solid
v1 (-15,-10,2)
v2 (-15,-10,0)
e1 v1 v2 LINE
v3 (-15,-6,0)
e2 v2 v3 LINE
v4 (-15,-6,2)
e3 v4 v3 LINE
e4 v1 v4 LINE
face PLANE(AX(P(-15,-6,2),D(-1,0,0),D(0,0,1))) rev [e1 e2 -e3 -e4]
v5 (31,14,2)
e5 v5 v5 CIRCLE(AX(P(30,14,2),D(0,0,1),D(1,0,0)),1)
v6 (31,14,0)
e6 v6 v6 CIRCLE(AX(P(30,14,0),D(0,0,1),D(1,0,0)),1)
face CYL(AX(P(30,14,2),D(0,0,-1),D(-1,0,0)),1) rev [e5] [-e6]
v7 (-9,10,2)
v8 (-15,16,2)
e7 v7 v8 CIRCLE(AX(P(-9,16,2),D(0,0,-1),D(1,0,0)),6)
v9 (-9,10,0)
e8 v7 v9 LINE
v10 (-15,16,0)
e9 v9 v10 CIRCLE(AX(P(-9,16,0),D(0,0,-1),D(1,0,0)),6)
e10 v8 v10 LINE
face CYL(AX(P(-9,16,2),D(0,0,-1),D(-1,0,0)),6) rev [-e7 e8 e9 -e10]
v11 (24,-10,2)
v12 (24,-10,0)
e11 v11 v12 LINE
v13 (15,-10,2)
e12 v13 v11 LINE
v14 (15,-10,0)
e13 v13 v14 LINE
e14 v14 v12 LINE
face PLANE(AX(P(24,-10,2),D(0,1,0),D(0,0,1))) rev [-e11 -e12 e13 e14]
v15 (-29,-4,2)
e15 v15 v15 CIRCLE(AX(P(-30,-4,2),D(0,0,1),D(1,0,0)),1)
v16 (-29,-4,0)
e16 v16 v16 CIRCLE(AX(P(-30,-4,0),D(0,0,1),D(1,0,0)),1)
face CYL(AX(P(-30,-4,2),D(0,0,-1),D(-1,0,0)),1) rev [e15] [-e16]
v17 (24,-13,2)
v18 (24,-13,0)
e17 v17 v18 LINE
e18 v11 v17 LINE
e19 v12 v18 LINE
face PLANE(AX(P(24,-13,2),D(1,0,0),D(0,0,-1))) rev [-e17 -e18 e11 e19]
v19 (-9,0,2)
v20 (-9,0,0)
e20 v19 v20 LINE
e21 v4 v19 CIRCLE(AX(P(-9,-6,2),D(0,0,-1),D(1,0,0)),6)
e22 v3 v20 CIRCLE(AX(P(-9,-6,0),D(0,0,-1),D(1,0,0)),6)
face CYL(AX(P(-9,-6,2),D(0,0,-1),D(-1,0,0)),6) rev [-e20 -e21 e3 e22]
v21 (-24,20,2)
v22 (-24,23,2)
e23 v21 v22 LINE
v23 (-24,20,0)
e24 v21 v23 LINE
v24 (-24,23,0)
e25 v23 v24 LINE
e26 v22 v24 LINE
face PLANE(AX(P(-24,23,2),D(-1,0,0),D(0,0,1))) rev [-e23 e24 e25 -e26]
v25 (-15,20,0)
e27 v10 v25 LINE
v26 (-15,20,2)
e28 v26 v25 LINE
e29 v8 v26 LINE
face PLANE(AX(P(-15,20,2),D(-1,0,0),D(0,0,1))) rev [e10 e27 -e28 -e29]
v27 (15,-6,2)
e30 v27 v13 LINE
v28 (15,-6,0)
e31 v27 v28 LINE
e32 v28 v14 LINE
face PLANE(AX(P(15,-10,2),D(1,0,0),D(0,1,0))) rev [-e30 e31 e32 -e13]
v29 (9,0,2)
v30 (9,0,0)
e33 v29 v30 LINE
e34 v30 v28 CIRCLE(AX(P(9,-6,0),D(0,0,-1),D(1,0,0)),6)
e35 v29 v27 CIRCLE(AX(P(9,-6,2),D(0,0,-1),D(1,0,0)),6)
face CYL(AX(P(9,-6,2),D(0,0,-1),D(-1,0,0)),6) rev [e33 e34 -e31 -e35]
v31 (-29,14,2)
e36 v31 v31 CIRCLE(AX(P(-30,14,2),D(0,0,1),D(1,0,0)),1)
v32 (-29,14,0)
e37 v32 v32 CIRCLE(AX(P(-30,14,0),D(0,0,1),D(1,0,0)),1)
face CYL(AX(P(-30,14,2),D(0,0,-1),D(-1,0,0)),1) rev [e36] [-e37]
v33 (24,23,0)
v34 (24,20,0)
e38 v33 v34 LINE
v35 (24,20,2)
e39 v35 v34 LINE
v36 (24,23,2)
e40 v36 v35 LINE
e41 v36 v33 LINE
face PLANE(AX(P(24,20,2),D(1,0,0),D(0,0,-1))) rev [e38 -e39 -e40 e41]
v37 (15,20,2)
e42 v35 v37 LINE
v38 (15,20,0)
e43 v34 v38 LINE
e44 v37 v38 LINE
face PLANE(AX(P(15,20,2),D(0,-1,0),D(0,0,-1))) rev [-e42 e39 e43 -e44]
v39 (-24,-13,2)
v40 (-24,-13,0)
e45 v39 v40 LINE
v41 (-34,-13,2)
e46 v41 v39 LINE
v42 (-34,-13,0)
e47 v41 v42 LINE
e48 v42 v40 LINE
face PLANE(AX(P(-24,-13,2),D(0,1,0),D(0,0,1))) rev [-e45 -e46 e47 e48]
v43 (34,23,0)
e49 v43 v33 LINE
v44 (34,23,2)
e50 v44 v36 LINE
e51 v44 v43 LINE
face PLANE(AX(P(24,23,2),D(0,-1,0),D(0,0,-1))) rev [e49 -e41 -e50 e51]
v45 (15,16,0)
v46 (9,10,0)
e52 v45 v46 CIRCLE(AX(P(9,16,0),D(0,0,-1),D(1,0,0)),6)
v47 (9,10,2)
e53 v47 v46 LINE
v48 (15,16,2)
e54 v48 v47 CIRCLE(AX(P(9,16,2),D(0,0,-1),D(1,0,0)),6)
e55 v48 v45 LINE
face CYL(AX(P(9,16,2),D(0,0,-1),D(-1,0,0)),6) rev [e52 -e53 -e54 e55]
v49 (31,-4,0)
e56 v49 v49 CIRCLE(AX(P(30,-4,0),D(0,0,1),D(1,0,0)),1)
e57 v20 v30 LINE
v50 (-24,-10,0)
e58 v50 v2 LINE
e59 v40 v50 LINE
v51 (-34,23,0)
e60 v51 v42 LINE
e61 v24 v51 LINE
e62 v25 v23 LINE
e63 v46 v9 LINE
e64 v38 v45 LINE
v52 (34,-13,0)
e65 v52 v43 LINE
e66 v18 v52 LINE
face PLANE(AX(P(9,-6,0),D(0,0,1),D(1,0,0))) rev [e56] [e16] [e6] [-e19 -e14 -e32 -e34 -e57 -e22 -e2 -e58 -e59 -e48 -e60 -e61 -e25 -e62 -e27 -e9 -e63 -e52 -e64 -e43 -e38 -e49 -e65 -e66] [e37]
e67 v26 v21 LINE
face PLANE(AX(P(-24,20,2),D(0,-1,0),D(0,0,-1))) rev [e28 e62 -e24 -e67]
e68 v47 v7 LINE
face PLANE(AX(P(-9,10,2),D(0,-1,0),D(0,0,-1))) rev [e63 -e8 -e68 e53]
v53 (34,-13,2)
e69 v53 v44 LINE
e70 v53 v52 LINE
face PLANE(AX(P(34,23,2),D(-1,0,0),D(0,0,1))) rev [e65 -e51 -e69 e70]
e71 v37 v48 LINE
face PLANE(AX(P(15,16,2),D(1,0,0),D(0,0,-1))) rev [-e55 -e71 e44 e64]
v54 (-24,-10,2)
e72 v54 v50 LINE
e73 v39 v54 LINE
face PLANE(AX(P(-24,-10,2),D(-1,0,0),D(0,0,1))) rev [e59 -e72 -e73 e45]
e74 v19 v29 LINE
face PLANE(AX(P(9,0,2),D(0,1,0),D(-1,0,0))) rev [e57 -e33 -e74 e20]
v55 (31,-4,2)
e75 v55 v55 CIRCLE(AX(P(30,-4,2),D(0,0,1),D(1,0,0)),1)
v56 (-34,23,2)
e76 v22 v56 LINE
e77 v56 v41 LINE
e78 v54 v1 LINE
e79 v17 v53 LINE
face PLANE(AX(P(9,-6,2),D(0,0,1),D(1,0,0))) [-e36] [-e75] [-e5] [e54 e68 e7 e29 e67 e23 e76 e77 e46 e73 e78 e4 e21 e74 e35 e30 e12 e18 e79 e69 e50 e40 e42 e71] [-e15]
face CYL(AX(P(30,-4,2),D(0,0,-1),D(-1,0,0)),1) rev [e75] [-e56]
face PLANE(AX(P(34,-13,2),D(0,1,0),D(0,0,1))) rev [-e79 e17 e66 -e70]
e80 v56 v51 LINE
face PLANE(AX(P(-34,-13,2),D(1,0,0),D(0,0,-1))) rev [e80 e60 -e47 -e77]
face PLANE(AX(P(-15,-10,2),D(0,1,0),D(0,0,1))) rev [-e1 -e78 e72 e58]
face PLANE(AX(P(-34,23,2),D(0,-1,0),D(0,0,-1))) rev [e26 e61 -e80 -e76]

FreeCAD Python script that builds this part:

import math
import FreeCAD as App
import Part
import Sketcher

doc = App.newDocument("Part")
body = doc.addObject("PartDesign::Body", "Body")

# Sketch on XY plane
sketch1 = body.newObject("Sketcher::SketchObject", "Sketch")
sketch1.AttachmentSupport = (doc.getObject("XY_Plane"), [""])
sketch1.MapMode = "FlatFace"
sketch1.addGeometry([
    Part.LineSegment(App.Vector(24, 20, 0), App.Vector(15, 20, 0)),  # 0
    Part.LineSegment(App.Vector(15, 20, 0), App.Vector(15, 16, 0)),  # 1
    Part.ArcOfCircle(Part.Circle(App.Vector(9, 16, 0), App.Vector(0, 0, 1), 6), math.radians(-90), math.radians(0)),  # 2
    Part.LineSegment(App.Vector(9, 10, 0), App.Vector(-9, 10, 0)),  # 3
    Part.ArcOfCircle(Part.Circle(App.Vector(-9, 16, 0), App.Vector(0, 0, 1), 6), math.radians(180), math.radians(270)),  # 4
    Part.LineSegment(App.Vector(-15, 16, 0), App.Vector(-15, 20, 0)),  # 5
    Part.LineSegment(App.Vector(-15, 20, 0), App.Vector(-24, 20, 0)),  # 6
    Part.LineSegment(App.Vector(-24, 20, 0), App.Vector(-24, 23, 0)),  # 7
    Part.LineSegment(App.Vector(-24, 23, 0), App.Vector(-34, 23, 0)),  # 8
    Part.LineSegment(App.Vector(-34, 23, 0), App.Vector(-34, -13, 0)),  # 9
    Part.LineSegment(App.Vector(-34, -13, 0), App.Vector(-24, -13, 0)),  # 10
    Part.LineSegment(App.Vector(-24, -13, 0), App.Vector(-24, -10, 0)),  # 11
    Part.LineSegment(App.Vector(-24, -10, 0), App.Vector(-15, -10, 0)),  # 12
    Part.LineSegment(App.Vector(-15, -10, 0), App.Vector(-15, -6, 0)),  # 13
    Part.ArcOfCircle(Part.Circle(App.Vector(-9, -6, 0), App.Vector(0, 0, 1), 6), math.radians(90), math.radians(180)),  # 14
    Part.LineSegment(App.Vector(-9, 0, 0), App.Vector(9, 0, 0)),  # 15
    Part.ArcOfCircle(Part.Circle(App.Vector(9, -6, 0), App.Vector(0, 0, 1), 6), math.radians(0), math.radians(90)),  # 16
    Part.LineSegment(App.Vector(15, -6, 0), App.Vector(15, -10, 0)),  # 17
    Part.LineSegment(App.Vector(15, -10, 0), App.Vector(24, -10, 0)),  # 18
    Part.LineSegment(App.Vector(24, -10, 0), App.Vector(24, -13, 0)),  # 19
    Part.LineSegment(App.Vector(24, -13, 0), App.Vector(34, -13, 0)),  # 20
    Part.LineSegment(App.Vector(34, -13, 0), App.Vector(34, 23, 0)),  # 21
    Part.LineSegment(App.Vector(34, 23, 0), App.Vector(24, 23, 0)),  # 22
    Part.LineSegment(App.Vector(24, 23, 0), App.Vector(24, 20, 0)),  # 23
    Part.Circle(App.Vector(30, -4, 0), App.Vector(0, 0, 1), 1),  # 24
    Part.Circle(App.Vector(-30, -4, 0), App.Vector(0, 0, 1), 1),  # 25
    Part.Circle(App.Vector(30, 14, 0), App.Vector(0, 0, 1), 1),  # 26
    Part.Circle(App.Vector(-30, 14, 0), App.Vector(0, 0, 1), 1),  # 27
], False)
sketch1.addConstraint([
    Sketcher.Constraint("Coincident", 0, 2, 1, 1),
    Sketcher.Constraint("Tangent", 1, 2, 2, 2),
    Sketcher.Constraint("Tangent", 2, 1, 3, 1),
    Sketcher.Constraint("Tangent", 3, 2, 4, 2),
    Sketcher.Constraint("Tangent", 4, 1, 5, 1),
    Sketcher.Constraint("Coincident", 5, 2, 6, 1),
    Sketcher.Constraint("Coincident", 6, 2, 7, 1),
    Sketcher.Constraint("Coincident", 7, 2, 8, 1),
    Sketcher.Constraint("Coincident", 8, 2, 9, 1),
    Sketcher.Constraint("Coincident", 9, 2, 10, 1),
    Sketcher.Constraint("Coincident", 10, 2, 11, 1),
    Sketcher.Constraint("Coincident", 11, 2, 12, 1),
    Sketcher.Constraint("Coincident", 12, 2, 13, 1),
    Sketcher.Constraint("Tangent", 13, 2, 14, 2),
    Sketcher.Constraint("Tangent", 14, 1, 15, 1),
    Sketcher.Constraint("Tangent", 15, 2, 16, 2),
    Sketcher.Constraint("Tangent", 16, 1, 17, 1),
    Sketcher.Constraint("Coincident", 17, 2, 18, 1),
    Sketcher.Constraint("Coincident", 18, 2, 19, 1),
    Sketcher.Constraint("Coincident", 19, 2, 20, 1),
    Sketcher.Constraint("Coincident", 20, 2, 21, 1),
    Sketcher.Constraint("Coincident", 21, 2, 22, 1),
    Sketcher.Constraint("Coincident", 22, 2, 23, 1),
    Sketcher.Constraint("Coincident", 23, 2, 0, 1),
    Sketcher.Constraint("Horizontal", 0),
    Sketcher.Constraint("Vertical", 1),
    Sketcher.Constraint("Horizontal", 3),
    Sketcher.Constraint("Vertical", 5),
    Sketcher.Constraint("Horizontal", 6),
    Sketcher.Constraint("Vertical", 7),
    Sketcher.Constraint("Horizontal", 8),
    Sketcher.Constraint("Vertical", 9),
    Sketcher.Constraint("Horizontal", 10),
    Sketcher.Constraint("Vertical", 11),
    Sketcher.Constraint("Horizontal", 12),
    Sketcher.Constraint("Vertical", 13),
    Sketcher.Constraint("Horizontal", 15),
    Sketcher.Constraint("Vertical", 17),
    Sketcher.Constraint("Horizontal", 18),
    Sketcher.Constraint("Vertical", 19),
    Sketcher.Constraint("Horizontal", 20),
    Sketcher.Constraint("Vertical", 21),
    Sketcher.Constraint("Horizontal", 22),
    Sketcher.Constraint("Vertical", 23),
    Sketcher.Constraint("Equal", 2, 4),
    Sketcher.Constraint("Equal", 4, 14),
    Sketcher.Constraint("Equal", 14, 16),
    Sketcher.Constraint("Equal", 24, 25),
    Sketcher.Constraint("Equal", 25, 26),
    Sketcher.Constraint("Equal", 26, 27),
    Sketcher.Constraint("Symmetric", 14, 1, 15, 2, -1, 1),
    Sketcher.Constraint("Symmetric", 24, 3, 25, 3, -2),
    Sketcher.Constraint("Symmetric", 26, 3, 27, 3, -2),
    Sketcher.Constraint("Symmetric", 0, 2, 5, 2, -2),
    Sketcher.Constraint("Symmetric", 11, 2, 18, 2, -2),
    Sketcher.Constraint("Symmetric", 9, 2, 20, 2, -2),
    Sketcher.Constraint("Symmetric", 7, 2, 22, 2, -2),
    Sketcher.Constraint("Vertical", 4, 3, 14, 3),
    Sketcher.Constraint("Vertical", 24, 3, 26, 3),
    Sketcher.Constraint("Vertical", 7, 2, 10, 2),
    Sketcher.Constraint("Equal", 7, 11),
    Sketcher.Constraint("Equal", 5, 13),
    Sketcher.Constraint("Diameter", 24, 2.0),
    Sketcher.Constraint("Radius", 2, 6.0),
    Sketcher.Constraint("DistanceX", 0, 2, 0, 1, 9.0),
    Sketcher.Constraint("DistanceX", 3, 2, 3, 1, 18.0),
    Sketcher.Constraint("DistanceX", 8, 2, 8, 1, 10.0),
    Sketcher.Constraint("DistanceY", 1, 2, 1, 1, 4.0),
    Sketcher.Constraint("DistanceY", 7, 1, 7, 2, 3.0),
    Sketcher.Constraint("DistanceY", 9, 2, 9, 1, 36.0),
    Sketcher.Constraint("DistanceX", -1, 1, 24, 3, 30.0),
    Sketcher.Constraint("DistanceY", 24, 3, -1, 1, 4.0),
    Sketcher.Constraint("DistanceY", -1, 1, 26, 3, 14.0),
])
pad1 = body.newObject("PartDesign::Pad", "Pad")
pad1.Profile = sketch1
pad1.Length = 2

doc.recompute()
